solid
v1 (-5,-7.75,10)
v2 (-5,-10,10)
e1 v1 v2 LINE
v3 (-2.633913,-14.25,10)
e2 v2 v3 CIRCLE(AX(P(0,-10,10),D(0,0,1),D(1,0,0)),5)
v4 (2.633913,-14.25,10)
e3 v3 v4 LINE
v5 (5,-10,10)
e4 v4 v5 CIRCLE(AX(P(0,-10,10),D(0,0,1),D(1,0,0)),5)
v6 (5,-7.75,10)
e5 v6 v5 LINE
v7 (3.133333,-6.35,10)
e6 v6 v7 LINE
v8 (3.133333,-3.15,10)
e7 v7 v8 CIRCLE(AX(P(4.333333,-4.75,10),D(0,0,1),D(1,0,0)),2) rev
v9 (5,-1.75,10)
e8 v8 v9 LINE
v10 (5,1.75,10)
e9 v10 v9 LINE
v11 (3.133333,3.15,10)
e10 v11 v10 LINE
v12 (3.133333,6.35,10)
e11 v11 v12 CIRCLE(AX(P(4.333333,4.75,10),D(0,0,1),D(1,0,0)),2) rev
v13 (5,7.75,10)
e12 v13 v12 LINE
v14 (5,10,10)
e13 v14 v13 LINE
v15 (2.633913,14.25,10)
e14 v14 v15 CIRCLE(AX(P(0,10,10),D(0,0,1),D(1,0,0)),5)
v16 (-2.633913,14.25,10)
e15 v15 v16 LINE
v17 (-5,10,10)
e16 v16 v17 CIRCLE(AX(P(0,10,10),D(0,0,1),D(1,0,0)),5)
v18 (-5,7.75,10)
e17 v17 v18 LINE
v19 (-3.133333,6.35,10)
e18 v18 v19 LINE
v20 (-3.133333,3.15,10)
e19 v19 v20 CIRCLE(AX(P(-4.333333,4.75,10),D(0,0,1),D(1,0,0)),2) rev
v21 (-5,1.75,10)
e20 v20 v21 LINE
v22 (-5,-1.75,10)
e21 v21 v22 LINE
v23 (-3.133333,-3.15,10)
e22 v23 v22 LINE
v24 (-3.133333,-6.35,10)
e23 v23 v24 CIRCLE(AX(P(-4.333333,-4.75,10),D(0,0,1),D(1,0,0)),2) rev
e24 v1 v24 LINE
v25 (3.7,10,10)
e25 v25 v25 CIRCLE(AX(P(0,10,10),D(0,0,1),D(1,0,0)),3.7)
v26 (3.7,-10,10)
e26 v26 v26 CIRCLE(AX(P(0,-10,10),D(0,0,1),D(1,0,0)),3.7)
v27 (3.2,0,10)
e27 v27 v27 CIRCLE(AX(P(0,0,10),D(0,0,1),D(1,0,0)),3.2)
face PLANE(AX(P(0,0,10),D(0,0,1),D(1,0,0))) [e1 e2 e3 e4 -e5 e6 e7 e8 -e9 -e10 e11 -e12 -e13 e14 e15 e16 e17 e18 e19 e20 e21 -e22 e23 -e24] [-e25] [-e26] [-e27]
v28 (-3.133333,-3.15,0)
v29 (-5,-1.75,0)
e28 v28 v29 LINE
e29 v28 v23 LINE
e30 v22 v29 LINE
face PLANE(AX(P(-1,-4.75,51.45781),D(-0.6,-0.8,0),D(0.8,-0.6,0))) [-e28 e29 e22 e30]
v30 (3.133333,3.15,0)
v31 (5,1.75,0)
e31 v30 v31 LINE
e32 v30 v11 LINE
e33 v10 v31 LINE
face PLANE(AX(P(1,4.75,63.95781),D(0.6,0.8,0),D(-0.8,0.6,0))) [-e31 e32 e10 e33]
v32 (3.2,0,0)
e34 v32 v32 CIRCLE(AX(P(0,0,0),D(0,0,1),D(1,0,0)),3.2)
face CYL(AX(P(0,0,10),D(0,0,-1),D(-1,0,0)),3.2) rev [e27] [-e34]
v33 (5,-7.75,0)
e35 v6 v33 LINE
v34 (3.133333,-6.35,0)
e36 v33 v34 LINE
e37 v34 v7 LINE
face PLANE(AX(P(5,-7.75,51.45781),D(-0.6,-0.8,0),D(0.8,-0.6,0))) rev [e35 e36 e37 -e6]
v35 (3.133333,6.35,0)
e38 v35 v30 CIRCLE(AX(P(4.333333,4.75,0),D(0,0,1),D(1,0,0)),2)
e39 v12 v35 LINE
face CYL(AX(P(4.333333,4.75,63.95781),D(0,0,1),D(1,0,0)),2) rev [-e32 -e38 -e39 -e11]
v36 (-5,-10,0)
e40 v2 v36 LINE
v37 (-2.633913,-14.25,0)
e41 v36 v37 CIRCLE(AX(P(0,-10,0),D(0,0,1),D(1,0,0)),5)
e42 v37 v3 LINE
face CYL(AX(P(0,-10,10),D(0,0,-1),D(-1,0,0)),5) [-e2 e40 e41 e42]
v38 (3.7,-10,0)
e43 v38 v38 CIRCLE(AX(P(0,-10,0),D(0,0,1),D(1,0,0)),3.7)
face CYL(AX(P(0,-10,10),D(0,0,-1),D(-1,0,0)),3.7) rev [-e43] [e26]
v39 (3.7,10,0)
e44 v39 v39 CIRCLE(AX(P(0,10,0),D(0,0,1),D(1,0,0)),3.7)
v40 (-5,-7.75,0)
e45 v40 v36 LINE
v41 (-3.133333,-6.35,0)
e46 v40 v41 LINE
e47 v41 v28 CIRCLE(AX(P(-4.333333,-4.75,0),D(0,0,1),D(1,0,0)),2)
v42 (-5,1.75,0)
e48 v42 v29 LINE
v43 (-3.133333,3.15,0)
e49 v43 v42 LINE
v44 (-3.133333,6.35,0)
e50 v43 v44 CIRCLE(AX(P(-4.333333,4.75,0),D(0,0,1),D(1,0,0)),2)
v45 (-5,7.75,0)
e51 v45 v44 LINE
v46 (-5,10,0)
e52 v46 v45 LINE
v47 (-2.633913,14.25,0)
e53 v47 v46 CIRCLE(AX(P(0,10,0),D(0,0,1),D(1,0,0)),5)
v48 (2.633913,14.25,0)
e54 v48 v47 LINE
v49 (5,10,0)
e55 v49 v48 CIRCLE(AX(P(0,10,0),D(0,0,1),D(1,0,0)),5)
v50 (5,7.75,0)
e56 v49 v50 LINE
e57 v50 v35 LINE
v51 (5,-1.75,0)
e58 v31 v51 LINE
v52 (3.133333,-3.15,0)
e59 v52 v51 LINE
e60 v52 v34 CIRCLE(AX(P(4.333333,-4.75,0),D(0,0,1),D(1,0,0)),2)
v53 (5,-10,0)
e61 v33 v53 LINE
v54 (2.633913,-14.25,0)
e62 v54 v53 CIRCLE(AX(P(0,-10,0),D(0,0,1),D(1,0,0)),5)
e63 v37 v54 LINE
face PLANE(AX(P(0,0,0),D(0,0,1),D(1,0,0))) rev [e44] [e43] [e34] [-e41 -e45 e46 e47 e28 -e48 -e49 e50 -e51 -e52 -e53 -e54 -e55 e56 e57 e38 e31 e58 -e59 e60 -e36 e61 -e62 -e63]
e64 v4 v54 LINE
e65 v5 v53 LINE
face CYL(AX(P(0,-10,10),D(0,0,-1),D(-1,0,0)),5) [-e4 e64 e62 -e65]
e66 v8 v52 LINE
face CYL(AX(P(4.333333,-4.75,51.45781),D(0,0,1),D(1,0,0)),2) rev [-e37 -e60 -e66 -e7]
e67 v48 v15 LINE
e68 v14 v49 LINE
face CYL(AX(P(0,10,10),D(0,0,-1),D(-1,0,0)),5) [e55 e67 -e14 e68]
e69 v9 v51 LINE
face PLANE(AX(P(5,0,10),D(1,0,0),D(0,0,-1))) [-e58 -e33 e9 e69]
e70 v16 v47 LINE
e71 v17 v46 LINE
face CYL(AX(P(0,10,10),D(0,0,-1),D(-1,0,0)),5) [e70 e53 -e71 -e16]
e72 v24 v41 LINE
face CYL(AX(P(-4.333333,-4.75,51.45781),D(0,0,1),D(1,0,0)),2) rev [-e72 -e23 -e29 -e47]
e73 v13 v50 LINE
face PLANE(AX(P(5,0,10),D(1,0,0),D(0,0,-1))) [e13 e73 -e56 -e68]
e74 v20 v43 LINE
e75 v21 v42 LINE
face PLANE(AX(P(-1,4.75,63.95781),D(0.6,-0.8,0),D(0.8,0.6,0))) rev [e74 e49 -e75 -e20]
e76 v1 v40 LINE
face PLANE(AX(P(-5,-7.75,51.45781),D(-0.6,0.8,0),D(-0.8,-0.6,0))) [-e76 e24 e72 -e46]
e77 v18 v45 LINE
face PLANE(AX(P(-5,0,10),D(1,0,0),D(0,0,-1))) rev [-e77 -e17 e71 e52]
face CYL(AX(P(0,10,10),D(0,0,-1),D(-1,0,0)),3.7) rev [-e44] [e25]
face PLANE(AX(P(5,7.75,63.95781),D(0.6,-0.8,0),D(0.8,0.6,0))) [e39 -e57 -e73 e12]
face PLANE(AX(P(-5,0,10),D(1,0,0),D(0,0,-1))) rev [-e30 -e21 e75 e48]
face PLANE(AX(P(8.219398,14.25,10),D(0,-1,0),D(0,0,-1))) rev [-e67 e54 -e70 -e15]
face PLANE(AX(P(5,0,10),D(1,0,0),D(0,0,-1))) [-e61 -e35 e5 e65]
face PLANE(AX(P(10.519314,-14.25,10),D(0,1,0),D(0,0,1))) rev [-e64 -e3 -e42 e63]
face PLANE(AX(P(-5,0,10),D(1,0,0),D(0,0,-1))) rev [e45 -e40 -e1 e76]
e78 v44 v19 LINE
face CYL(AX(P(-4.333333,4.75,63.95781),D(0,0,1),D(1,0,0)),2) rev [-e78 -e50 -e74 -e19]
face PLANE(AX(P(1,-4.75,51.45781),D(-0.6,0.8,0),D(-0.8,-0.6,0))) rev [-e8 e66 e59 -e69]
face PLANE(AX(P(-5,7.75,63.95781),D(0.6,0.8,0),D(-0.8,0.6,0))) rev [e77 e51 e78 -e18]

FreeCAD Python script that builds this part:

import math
import FreeCAD as App
import Part
import Sketcher

V = App.Vector
Q = App.Units.Quantity


def edges_at(feature, points):
    """Names of the edges that pass closest to the given points."""
    edges = feature.Shape.Edges
    near = lambda p: min(range(len(edges)), key=lambda i: edges[i].distToShape(Part.Vertex(*p))[0])
    return sorted({f"Edge{near(p) + 1}" for p in points})


def add_polygon(sketch, points):
    """Adds a closed chain of lines whose ends are joined by coincident constraints."""
    first, n = sketch.GeometryCount, len(points)
    for a, b in zip(points, points[1:] + points[:1]):
        sketch.addGeometry(Part.LineSegment(App.Vector(*a, 0), App.Vector(*b, 0)), False)
    for i in range(n):
        sketch.addConstraint(Sketcher.Constraint("Coincident", first + i, 2, first + (i + 1) % n, 1))

doc = App.newDocument("Part")
params = doc.addObject("Spreadsheet::Sheet", "Params")
for row, (alias, value) in enumerate([
    ("sketch1_radius", "5 mm"),
    ("sketch1_diameter", "7.4 mm"),
    ("sketch1_diameter2", "6.4 mm"),
    ("sketch1_height", "20 mm"),
    ("pad1_length", "10 mm"),
    ("sketch2_length", "5 mm"),
    ("pocket1_length", "29.708287 mm"),
    ("sketch3_length", "5 mm"),
    ("pocket2_length", "29.708287 mm"),
    ("fillet_radius", "2 mm"),
    ("sketch4_height", "1.5 mm"),
], start=1):
    params.set(f"A{row}", alias)
    params.set(f"B{row}", "=" + value)
    params.setAlias(f"B{row}", alias)

body = doc.addObject("PartDesign::Body", "Body")

# Sketch on XY plane
sketch1 = body.newObject("Sketcher::SketchObject", "Sketch")
sketch1.AttachmentSupport = (doc.getObject("XY_Plane"), [""])
sketch1.MapMode = "FlatFace"
sketch1.addGeometry(Part.ArcOfCircle(Part.Circle(V(0, 10, 0), V(0, 0, 1), 5), math.radians(0), math.radians(180)), False)
sketch1.addGeometry(Part.LineSegment(V(-5, 10, 0), V(-5, -10, 0)), False)
sketch1.addGeometry(Part.ArcOfCircle(Part.Circle(V(0, -10, 0), V(0, 0, 1), 5), math.radians(180), math.radians(360)), False)
sketch1.addGeometry(Part.LineSegment(V(5, -10, 0), V(5, 10, 0)), False)
sketch1.addGeometry(Part.Circle(V(0, -10, 0), V(0, 0, 1), 3.7), False)
sketch1.addGeometry(Part.Circle(V(0, 0, 0), V(0, 0, 1), 3.2), False)
sketch1.addGeometry(Part.Circle(V(0, 10, 0), V(0, 0, 1), 3.7), False)
sketch1.addConstraint(Sketcher.Constraint("Tangent", 0, 2, 1, 1))
sketch1.addConstraint(Sketcher.Constraint("Tangent", 1, 2, 2, 1))
sketch1.addConstraint(Sketcher.Constraint("Tangent", 2, 2, 3, 1))
sketch1.addConstraint(Sketcher.Constraint("Tangent", 3, 2, 0, 1))
sketch1.addConstraint(Sketcher.Constraint("Vertical", 1))
sketch1.addConstraint(Sketcher.Constraint("Vertical", 3))
sketch1.addConstraint(Sketcher.Constraint("Coincident", 5, 3, -1, 1))
sketch1.addConstraint(Sketcher.Constraint("Coincident", 4, 3, 2, 3))
sketch1.addConstraint(Sketcher.Constraint("Coincident", 6, 3, 0, 3))
sketch1.addConstraint(Sketcher.Constraint("Equal", 4, 6))
sketch1.addConstraint(Sketcher.Constraint("Symmetric", 0, 3, 2, 3, -1, 1))
sketch1.addConstraint(Sketcher.Constraint("Radius", 0, Q("5 mm")))
sketch1.addConstraint(Sketcher.Constraint("Diameter", 4, Q("7.4 mm")))
sketch1.addConstraint(Sketcher.Constraint("Diameter", 5, Q("6.4 mm")))
sketch1.addConstraint(Sketcher.Constraint("DistanceY", 1, 2, 1, 1, Q("20 mm")))
sketch1.setExpression("Constraints[11]", "Params.sketch1_radius")
sketch1.setExpression("Constraints[12]", "Params.sketch1_diameter")
sketch1.setExpression("Constraints[13]", "Params.sketch1_diameter2")
sketch1.setExpression("Constraints[14]", "Params.sketch1_height")
pad1 = body.newObject("PartDesign::Pad", "Pad")
pad1.Profile = sketch1
pad1.setExpression("Length", "Params.pad1_length")

# Sketch on XY plane
sketch2 = body.newObject("Sketcher::SketchObject", "Sketch001")
sketch2.AttachmentSupport = (doc.getObject("XY_Plane"), [""])
sketch2.MapMode = "FlatFace"
add_polygon(sketch2, [(53, 44), (5, 8), (1, 5), (5, 2), (53, -34), (172, -34), (172, 44)])  # lines 0-6
sketch2.addConstraint(Sketcher.Constraint("Horizontal", 4))
sketch2.addConstraint(Sketcher.Constraint("Vertical", 5))
sketch2.addConstraint(Sketcher.Constraint("Horizontal", 6))
sketch2.addConstraint(Sketcher.Constraint("Parallel", 0, 1))
sketch2.addConstraint(Sketcher.Constraint("Parallel", 2, 3))
sketch2.addConstraint(Sketcher.Constraint("Vertical", 0, 2, 2, 2))
sketch2.addConstraint(Sketcher.Constraint("Vertical", 3, 2, 6, 2))
sketch2.addConstraint(Sketcher.Constraint("Equal", 1, 2))
sketch2.addConstraint(Sketcher.Constraint("Distance", 1, Q("5 mm")))
sketch2.addConstraint(Sketcher.Constraint("DistanceX", -1, 1, 0, 2, Q("5 mm")))
sketch2.addConstraint(Sketcher.Constraint("DistanceX", -1, 1, 1, 2, Q("1 mm")))
sketch2.addConstraint(Sketcher.Constraint("DistanceY", -1, 1, 0, 2, Q("7.75 mm")))
sketch2.addConstraint(Sketcher.Constraint("DistanceX", 4, 1, 4, 2, Q("119.403219 mm")))
sketch2.addConstraint(Sketcher.Constraint("DistanceY", 5, 1, 5, 2, Q("77.641932 mm")))
sketch2.setExpression("Constraints[15]", "Params.sketch2_length")
pocket1 = body.newObject("PartDesign::Pocket", "Pocket")
pocket1.Profile = sketch2
pocket1.setExpression("Length", "Params.pocket1_length")
pocket1.Reversed = True
doc.recompute()

mirrored = body.newObject("PartDesign::Mirrored", "Mirrored")
mirrored.Originals = [pocket1]
mirrored.MirrorPlane = (doc.getObject("YZ_Plane"), [""])
body.Tip = mirrored
doc.recompute()

mirrored2 = body.newObject("PartDesign::Mirrored", "Mirrored001")
mirrored2.Originals = [pocket1]
mirrored2.MirrorPlane = (doc.getObject("XZ_Plane"), [""])
body.Tip = mirrored2

# Sketch on XY plane
sketch3 = body.newObject("Sketcher::SketchObject", "Sketch002")
sketch3.AttachmentSupport = (doc.getObject("XY_Plane"), [""])
sketch3.MapMode = "FlatFace"
add_polygon(sketch3, [(-53, -44), (-5, -8), (-1, -5), (-5, -2), (-53, 34), (-172, 34), (-172, -44)])  # lines 0-6
sketch3.addConstraint(Sketcher.Constraint("Horizontal", 4))
sketch3.addConstraint(Sketcher.Constraint("Vertical", 5))
sketch3.addConstraint(Sketcher.Constraint("Horizontal", 6))
sketch3.addConstraint(Sketcher.Constraint("Parallel", 0, 1))
sketch3.addConstraint(Sketcher.Constraint("Parallel", 2, 3))
sketch3.addConstraint(Sketcher.Constraint("Vertical", 0, 2, 2, 2))
sketch3.addConstraint(Sketcher.Constraint("Vertical", 3, 2, 6, 2))
sketch3.addConstraint(Sketcher.Constraint("Equal", 1, 2))
sketch3.addConstraint(Sketcher.Constraint("Distance", 1, Q("5 mm")))
sketch3.addConstraint(Sketcher.Constraint("DistanceX", 0, 2, -1, 1, Q("5 mm")))
sketch3.addConstraint(Sketcher.Constraint("DistanceX", 1, 2, -1, 1, Q("1 mm")))
sketch3.addConstraint(Sketcher.Constraint("DistanceY", 0, 2, -1, 1, Q("7.75 mm")))
sketch3.addConstraint(Sketcher.Constraint("DistanceX", 4, 2, 4, 1, Q("119.403219 mm")))
sketch3.addConstraint(Sketcher.Constraint("DistanceY", 5, 2, 5, 1, Q("77.641932 mm")))
sketch3.setExpression("Constraints[15]", "Params.sketch3_length")
pocket2 = body.newObject("PartDesign::Pocket", "Pocket001")
pocket2.Profile = sketch3
pocket2.setExpression("Length", "Params.pocket2_length")
pocket2.Reversed = True
doc.recompute()

fillet = body.newObject("PartDesign::Fillet", "Fillet")
fillet.Base = (pocket2, edges_at(pocket2, [
    (1, 4.75, 5),
    (-1, 4.75, 5),
    (-1, -4.75, 5),
    (1, -4.75, 5),
]))
fillet.setExpression("Radius", "Params.fillet_radius")

# Sketch on XY plane
sketch4 = body.newObject("Sketcher::SketchObject", "Sketch003")
sketch4.AttachmentSupport = (doc.getObject("XY_Plane"), [""])
sketch4.MapMode = "FlatFace"
add_polygon(sketch4, [(8.2, 15.8), (8.2, 14.2), (-8.2, 14.2), (-8.2, 15.8)])  # lines 0-3
add_polygon(sketch4, [(10.5, -14.2), (10.5, -15.8), (-10.5, -15.8), (-10.5, -14.2)])  # lines 4-7
sketch4.addConstraint(Sketcher.Constraint("Vertical", 0))
sketch4.addConstraint(Sketcher.Constraint("Horizontal", 1))
sketch4.addConstraint(Sketcher.Constraint("Vertical", 2))
sketch4.addConstraint(Sketcher.Constraint("Horizontal", 3))
sketch4.addConstraint(Sketcher.Constraint("Vertical", 4))
sketch4.addConstraint(Sketcher.Constraint("Horizontal", 5))
sketch4.addConstraint(Sketcher.Constraint("Vertical", 6))
sketch4.addConstraint(Sketcher.Constraint("Horizontal", 7))
sketch4.addConstraint(Sketcher.Constraint("Equal", 2, 4))
sketch4.addConstraint(Sketcher.Constraint("DistanceY", 0, 2, 0, 1, Q("1.5 mm")))
sketch4.addConstraint(Sketcher.Constraint("DistanceY", 4, 2, 0, 2, Q("30 mm")))
sketch4.addConstraint(Sketcher.Constraint("DistanceY", -1, 1, 0, 2, Q("14.25 mm")))
sketch4.addConstraint(Sketcher.Constraint("DistanceX", 1, 2, 1, 1, Q("16.438796 mm")))
sketch4.addConstraint(Sketcher.Constraint("DistanceX", 5, 2, 5, 1, Q("21.038628 mm")))
sketch4.addConstraint(Sketcher.Constraint("DistanceX", 1, 2, 4, 2, Q("18.738712 mm")))
sketch4.addConstraint(Sketcher.Constraint("DistanceX", -1, 1, 0, 2, Q("8.219398 mm")))
sketch4.setExpression("Constraints[17]", "Params.sketch4_height")
pocket3 = body.newObject("PartDesign::Pocket", "Pocket002")
pocket3.Profile = sketch4
pocket3.Type = "ThroughAll"
pocket3.Reversed = True

doc.recompute()
